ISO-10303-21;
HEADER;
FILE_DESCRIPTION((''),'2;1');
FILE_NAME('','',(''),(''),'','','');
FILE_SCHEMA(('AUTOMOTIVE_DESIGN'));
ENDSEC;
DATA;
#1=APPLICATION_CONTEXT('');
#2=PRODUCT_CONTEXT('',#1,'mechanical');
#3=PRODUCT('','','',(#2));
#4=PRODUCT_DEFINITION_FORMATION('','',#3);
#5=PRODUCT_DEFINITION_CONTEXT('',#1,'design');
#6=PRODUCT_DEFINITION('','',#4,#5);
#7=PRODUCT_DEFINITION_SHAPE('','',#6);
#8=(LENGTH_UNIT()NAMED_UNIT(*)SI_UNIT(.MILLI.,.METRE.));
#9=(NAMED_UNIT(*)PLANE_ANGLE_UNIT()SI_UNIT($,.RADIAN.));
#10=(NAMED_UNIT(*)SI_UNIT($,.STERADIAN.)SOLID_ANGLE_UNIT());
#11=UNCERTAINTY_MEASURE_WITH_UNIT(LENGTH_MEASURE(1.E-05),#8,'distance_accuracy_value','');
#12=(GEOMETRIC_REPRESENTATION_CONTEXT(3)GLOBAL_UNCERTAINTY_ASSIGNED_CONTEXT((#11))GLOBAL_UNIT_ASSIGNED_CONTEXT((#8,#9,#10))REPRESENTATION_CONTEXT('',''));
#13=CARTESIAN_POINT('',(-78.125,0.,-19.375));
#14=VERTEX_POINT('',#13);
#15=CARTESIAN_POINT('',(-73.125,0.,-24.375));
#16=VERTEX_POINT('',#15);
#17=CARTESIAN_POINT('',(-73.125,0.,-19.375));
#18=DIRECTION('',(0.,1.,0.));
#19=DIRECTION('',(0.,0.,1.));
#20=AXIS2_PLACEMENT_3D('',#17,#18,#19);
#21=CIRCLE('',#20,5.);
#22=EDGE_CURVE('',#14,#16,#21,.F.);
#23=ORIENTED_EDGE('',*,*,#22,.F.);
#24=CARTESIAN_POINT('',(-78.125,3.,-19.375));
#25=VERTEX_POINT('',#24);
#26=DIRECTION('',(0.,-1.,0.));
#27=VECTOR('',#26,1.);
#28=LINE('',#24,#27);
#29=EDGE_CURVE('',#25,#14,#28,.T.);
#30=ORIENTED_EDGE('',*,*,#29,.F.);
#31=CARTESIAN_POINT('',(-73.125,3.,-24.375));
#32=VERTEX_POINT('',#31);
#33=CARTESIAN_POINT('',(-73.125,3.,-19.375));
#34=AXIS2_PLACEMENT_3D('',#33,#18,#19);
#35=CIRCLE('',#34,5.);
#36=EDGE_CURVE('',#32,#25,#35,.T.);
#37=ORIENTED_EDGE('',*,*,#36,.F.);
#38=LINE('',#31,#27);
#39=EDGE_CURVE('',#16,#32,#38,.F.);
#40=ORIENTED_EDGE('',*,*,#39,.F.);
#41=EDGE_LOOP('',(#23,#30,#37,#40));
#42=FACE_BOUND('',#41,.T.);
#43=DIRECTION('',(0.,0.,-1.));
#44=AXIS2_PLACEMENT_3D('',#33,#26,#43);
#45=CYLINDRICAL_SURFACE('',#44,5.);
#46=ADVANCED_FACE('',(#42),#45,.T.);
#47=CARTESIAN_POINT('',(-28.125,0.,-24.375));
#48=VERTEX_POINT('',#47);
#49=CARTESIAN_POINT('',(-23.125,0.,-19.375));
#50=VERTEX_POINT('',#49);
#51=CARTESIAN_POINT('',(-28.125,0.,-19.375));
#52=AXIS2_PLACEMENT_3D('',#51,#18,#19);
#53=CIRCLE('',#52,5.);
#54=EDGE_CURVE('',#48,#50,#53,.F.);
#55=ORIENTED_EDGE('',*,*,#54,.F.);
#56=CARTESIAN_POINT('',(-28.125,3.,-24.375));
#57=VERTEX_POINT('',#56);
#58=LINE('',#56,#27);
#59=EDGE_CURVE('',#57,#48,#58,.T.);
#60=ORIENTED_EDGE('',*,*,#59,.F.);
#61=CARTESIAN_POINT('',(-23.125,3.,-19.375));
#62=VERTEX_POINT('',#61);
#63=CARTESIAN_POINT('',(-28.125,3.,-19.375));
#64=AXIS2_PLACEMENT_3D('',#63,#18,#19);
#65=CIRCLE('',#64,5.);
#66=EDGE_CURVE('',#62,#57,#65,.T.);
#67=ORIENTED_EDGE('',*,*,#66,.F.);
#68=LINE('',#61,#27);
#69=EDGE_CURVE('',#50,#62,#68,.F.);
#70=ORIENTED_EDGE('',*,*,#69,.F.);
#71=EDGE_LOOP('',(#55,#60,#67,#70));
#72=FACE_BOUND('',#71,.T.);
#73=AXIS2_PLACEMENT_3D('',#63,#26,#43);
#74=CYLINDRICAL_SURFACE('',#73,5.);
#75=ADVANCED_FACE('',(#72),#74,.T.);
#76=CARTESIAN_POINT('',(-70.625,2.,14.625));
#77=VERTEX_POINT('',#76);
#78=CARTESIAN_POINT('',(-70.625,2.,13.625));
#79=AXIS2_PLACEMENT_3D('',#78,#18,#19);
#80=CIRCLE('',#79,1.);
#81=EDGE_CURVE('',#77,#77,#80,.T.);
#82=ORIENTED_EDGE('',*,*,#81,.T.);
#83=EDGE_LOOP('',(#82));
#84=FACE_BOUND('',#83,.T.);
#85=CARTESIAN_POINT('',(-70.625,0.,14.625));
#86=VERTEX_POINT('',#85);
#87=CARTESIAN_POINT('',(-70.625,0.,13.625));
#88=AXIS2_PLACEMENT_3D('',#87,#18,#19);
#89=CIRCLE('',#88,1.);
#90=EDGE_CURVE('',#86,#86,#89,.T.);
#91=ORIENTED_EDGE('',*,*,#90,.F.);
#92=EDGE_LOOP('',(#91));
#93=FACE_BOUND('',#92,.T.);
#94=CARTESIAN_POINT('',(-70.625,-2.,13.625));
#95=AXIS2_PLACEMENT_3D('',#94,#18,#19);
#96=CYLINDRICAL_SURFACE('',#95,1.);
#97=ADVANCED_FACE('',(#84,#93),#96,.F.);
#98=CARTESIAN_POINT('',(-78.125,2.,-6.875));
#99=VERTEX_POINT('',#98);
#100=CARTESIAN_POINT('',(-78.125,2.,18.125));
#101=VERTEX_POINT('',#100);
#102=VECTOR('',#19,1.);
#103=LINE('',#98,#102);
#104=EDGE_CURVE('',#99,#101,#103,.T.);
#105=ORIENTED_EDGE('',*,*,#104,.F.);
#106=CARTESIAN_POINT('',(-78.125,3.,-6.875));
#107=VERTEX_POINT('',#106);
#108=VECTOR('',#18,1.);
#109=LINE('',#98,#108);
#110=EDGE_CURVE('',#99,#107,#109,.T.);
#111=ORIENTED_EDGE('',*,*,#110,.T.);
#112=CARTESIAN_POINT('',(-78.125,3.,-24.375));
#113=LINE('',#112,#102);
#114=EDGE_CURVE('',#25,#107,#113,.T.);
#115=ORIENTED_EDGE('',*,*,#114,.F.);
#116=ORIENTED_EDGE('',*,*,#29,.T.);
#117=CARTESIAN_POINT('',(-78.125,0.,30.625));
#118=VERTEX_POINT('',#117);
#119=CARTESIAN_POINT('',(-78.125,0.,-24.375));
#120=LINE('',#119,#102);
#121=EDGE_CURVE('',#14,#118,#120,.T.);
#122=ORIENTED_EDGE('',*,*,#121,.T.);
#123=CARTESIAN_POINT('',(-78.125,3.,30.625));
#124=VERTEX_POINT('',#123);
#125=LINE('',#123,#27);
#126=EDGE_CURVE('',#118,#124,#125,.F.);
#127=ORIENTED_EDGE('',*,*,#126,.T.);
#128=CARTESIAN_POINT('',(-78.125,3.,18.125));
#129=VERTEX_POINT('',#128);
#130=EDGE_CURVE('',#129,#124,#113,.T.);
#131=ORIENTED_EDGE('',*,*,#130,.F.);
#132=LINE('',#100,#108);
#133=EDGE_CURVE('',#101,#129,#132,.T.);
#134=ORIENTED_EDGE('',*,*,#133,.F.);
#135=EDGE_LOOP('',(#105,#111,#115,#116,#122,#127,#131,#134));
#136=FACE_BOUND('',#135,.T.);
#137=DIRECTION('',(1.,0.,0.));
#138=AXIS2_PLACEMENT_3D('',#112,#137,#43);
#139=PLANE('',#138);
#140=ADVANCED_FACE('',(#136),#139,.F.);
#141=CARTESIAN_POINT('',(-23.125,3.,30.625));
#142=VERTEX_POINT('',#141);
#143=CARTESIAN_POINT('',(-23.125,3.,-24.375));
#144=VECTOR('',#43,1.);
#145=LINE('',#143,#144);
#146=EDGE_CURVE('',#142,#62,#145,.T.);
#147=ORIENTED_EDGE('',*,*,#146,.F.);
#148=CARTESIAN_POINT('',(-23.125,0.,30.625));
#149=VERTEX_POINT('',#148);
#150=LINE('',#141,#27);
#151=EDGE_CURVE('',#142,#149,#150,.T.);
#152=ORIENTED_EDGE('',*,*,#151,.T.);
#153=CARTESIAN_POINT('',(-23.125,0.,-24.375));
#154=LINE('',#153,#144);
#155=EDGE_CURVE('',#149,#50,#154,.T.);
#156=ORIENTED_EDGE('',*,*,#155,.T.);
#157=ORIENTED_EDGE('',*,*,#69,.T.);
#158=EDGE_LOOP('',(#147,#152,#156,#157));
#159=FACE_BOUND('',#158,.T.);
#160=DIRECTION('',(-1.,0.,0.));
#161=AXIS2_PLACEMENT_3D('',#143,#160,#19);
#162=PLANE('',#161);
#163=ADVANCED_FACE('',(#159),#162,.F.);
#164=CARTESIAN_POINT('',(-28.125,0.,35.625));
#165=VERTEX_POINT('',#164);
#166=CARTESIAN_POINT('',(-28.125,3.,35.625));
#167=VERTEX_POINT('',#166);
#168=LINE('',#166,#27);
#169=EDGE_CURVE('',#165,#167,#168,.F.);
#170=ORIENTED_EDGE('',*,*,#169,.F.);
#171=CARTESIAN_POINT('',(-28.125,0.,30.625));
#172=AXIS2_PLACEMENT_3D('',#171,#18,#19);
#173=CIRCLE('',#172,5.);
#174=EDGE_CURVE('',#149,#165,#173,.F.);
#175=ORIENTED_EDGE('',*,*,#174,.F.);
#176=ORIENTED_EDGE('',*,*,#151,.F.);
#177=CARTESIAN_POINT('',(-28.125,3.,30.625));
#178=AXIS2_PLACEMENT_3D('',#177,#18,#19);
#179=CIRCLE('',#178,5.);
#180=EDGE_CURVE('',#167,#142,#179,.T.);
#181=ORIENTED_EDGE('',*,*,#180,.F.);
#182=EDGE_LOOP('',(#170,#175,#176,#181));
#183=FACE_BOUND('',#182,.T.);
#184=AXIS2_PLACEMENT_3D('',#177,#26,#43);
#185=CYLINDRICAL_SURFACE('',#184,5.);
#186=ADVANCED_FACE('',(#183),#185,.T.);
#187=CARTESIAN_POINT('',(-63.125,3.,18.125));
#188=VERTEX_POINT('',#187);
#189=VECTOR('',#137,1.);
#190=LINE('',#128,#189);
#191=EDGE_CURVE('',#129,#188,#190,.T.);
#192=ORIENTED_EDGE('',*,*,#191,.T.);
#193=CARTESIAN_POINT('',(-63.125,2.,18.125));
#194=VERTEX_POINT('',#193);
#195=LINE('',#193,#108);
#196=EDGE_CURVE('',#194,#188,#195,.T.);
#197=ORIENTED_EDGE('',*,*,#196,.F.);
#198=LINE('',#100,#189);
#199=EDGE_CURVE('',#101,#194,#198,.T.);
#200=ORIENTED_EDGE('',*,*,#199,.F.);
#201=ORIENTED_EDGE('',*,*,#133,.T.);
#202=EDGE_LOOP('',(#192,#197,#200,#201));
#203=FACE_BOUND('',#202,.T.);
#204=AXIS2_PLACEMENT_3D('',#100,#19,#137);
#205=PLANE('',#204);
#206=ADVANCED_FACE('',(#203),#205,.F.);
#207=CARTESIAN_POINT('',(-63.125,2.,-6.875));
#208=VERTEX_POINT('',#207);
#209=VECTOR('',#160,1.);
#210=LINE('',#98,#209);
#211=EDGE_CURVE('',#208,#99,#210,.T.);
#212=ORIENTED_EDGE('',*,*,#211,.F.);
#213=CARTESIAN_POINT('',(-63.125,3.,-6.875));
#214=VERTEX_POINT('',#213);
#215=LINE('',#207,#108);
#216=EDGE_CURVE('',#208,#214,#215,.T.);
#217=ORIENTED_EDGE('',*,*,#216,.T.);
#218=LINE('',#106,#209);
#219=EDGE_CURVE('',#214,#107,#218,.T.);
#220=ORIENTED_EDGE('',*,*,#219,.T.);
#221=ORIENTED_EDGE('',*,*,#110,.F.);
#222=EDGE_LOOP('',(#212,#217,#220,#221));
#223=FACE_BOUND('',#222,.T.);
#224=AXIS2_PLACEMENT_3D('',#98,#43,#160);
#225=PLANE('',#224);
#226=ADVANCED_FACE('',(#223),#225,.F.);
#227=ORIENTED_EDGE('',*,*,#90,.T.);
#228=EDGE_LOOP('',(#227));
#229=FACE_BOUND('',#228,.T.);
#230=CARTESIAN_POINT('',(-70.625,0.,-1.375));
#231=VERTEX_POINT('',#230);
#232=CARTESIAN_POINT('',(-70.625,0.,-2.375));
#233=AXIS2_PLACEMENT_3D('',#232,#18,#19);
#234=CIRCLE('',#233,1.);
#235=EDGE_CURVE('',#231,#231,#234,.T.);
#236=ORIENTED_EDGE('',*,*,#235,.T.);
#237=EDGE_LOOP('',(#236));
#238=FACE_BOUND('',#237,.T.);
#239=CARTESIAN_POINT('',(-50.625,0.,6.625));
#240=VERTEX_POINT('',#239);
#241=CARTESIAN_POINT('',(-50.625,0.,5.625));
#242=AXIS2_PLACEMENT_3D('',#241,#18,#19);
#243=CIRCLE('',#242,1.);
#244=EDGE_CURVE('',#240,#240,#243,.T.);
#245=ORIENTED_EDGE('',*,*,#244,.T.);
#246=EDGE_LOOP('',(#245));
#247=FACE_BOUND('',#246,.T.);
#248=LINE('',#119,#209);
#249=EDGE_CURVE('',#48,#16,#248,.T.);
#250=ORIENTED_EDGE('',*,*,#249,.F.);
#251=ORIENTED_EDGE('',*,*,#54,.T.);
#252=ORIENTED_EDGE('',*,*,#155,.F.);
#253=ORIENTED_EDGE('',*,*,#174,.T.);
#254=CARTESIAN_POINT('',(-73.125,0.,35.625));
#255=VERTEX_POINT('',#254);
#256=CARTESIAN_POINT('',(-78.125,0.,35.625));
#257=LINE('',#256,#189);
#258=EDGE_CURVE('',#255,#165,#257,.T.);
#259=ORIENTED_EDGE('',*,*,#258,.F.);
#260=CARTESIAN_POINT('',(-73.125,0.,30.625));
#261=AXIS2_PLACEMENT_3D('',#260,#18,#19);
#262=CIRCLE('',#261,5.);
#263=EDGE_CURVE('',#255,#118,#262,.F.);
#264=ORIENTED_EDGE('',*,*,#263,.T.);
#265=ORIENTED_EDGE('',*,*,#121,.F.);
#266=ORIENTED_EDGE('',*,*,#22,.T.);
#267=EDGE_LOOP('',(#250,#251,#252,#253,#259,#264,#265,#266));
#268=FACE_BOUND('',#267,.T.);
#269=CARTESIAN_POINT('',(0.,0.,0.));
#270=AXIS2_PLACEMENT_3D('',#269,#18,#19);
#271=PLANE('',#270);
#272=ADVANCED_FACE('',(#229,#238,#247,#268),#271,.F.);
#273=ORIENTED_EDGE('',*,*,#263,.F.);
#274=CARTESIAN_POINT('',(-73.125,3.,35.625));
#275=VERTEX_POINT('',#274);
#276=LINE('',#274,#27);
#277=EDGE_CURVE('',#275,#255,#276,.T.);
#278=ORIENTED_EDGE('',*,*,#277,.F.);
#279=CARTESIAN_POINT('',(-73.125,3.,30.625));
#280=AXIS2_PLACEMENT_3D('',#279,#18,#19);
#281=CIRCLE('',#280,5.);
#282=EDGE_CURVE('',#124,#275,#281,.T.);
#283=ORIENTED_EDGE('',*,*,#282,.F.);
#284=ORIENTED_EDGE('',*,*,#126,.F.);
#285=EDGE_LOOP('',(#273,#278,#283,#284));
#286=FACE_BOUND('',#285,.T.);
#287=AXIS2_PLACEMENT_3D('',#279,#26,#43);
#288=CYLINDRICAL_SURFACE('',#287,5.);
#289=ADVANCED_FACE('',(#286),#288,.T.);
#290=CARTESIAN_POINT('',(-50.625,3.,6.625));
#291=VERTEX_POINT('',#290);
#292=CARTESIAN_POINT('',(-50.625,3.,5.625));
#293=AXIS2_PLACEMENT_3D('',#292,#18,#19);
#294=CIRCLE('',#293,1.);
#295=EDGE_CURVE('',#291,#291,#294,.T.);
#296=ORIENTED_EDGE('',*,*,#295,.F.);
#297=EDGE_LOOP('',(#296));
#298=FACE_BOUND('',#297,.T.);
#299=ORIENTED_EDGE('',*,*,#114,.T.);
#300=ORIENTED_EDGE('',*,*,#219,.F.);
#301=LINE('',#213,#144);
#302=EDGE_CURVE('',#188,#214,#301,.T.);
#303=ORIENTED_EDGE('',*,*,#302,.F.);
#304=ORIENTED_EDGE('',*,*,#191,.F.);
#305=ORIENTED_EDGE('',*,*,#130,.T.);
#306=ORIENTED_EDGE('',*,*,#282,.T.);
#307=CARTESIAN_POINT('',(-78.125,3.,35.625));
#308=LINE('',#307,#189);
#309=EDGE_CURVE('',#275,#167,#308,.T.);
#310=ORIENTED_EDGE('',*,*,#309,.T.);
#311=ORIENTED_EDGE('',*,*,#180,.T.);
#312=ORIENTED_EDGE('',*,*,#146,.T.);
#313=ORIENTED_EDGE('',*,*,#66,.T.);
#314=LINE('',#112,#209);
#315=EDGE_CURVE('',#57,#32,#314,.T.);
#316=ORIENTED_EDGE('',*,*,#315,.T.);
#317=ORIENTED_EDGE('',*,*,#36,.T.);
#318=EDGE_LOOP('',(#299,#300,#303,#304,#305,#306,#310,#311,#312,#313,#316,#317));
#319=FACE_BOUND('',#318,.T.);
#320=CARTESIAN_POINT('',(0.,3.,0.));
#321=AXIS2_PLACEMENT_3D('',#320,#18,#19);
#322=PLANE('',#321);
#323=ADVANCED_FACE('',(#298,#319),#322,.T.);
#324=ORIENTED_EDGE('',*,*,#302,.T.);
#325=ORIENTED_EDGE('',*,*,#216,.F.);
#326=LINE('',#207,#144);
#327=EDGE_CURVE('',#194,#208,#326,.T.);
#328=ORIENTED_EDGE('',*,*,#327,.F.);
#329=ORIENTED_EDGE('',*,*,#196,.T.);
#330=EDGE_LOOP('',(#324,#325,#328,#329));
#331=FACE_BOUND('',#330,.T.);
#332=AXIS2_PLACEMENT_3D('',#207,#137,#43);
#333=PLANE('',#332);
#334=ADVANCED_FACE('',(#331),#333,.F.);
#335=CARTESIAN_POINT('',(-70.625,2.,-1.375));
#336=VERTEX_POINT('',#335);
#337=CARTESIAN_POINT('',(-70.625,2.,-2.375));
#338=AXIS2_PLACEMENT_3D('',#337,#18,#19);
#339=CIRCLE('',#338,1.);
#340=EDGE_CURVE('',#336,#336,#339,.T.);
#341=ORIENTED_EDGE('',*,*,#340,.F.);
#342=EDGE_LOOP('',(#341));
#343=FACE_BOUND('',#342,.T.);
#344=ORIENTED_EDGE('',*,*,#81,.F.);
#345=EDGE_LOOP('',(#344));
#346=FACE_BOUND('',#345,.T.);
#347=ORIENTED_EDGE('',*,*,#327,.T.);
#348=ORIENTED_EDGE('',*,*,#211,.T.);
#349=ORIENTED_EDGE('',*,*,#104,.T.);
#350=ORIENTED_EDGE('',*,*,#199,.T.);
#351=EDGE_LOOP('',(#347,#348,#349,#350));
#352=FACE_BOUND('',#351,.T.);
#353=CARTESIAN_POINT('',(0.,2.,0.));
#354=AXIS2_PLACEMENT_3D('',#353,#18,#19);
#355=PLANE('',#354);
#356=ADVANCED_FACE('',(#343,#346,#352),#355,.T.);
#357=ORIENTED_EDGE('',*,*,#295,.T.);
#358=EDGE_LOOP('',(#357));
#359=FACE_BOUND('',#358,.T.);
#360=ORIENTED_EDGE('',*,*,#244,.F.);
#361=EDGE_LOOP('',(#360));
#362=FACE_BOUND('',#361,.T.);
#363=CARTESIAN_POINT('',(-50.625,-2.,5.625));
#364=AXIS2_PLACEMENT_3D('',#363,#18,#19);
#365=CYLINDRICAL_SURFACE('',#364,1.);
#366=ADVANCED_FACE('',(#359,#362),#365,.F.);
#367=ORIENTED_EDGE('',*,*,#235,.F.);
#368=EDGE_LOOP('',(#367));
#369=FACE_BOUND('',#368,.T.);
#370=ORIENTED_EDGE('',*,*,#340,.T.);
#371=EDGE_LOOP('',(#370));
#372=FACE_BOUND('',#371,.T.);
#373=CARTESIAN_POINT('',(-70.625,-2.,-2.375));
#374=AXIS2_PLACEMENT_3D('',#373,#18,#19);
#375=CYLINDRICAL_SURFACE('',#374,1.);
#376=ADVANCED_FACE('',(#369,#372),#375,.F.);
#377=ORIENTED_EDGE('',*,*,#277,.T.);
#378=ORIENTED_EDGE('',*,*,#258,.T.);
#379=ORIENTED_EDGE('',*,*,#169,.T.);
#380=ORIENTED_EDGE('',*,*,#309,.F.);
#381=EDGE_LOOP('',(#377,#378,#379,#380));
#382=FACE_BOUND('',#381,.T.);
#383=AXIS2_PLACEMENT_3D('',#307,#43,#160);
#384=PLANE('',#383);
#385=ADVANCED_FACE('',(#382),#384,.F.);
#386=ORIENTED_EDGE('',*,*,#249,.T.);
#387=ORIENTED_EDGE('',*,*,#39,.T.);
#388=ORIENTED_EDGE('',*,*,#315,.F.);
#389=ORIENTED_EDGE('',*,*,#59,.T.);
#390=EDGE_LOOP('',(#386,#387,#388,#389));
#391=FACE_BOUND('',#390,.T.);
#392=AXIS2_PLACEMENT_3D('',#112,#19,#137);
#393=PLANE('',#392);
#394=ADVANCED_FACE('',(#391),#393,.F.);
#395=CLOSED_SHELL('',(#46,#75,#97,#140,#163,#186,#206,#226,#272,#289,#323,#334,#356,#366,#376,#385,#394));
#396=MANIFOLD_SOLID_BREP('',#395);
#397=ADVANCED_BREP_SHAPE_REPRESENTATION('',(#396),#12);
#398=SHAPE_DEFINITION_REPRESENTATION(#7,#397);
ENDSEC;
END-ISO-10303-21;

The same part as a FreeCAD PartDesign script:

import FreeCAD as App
import Part
import Sketcher

V = App.Vector
Q = App.Units.Quantity


def edges_at(feature, points):
    """Names of the edges that pass closest to the given points."""
    edges = feature.Shape.Edges
    near = lambda p: min(range(len(edges)), key=lambda i: edges[i].distToShape(Part.Vertex(*p))[0])
    return sorted({f"Edge{near(p) + 1}" for p in points})

doc = App.newDocument("Part")
body = doc.addObject("PartDesign::Body", "Body")

sketch1 = doc.addObject("Sketcher::SketchObject", "Sketch")
body.addObject(sketch1)
sketch1.AttachmentSupport = (doc.XZ_Plane, [""])
sketch1.MapMode = "FlatFace"
sketch1.addGeometry(Part.LineSegment(V(-78, -24, 0), V(-78, 36, 0)), False)
sketch1.addGeometry(Part.LineSegment(V(-78, 36, 0), V(-23, 36, 0)), False)
sketch1.addGeometry(Part.LineSegment(V(-23, 36, 0), V(-23, -24, 0)), False)
sketch1.addGeometry(Part.LineSegment(V(-23, -24, 0), V(-78, -24, 0)), False)
sketch1.addConstraint(Sketcher.Constraint("Coincident", 0, 2, 1, 1))
sketch1.addConstraint(Sketcher.Constraint("Coincident", 1, 2, 2, 1))
sketch1.addConstraint(Sketcher.Constraint("Coincident", 2, 2, 3, 1))
sketch1.addConstraint(Sketcher.Constraint("Coincident", 3, 2, 0, 1))
sketch1.addConstraint(Sketcher.Constraint("Vertical", 0))
sketch1.addConstraint(Sketcher.Constraint("Horizontal", 1))
sketch1.addConstraint(Sketcher.Constraint("Vertical", 2))
sketch1.addConstraint(Sketcher.Constraint("Horizontal", 3))
sketch1.addConstraint(Sketcher.Constraint("DistanceX", 1, 1, 1, 2, Q("55 mm")))
sketch1.addConstraint(Sketcher.Constraint("DistanceY", 0, 1, 0, 2, Q("60 mm")))
sketch1.addConstraint(Sketcher.Constraint("DistanceX", 0, 2, -1, 1, Q("78.125 mm")))
sketch1.addConstraint(Sketcher.Constraint("DistanceY", -1, 1, 0, 2, Q("35.625 mm")))
pad1 = doc.addObject("PartDesign::Pad", "Pad")
body.addObject(pad1)
pad1.Profile = sketch1
pad1.Length = 3
pad1.Reversed = True

sketch2 = doc.addObject("Sketcher::SketchObject", "Sketch001")
body.addObject(sketch2)
sketch2.AttachmentSupport = (doc.XZ_Plane, [""])
sketch2.MapMode = "FlatFace"
sketch2.AttachmentOffset = App.Placement(V(0, 0, -3), App.Rotation())
sketch2.addGeometry(Part.LineSegment(V(-78, -7, 0), V(-78, 18, 0)), False)
sketch2.addGeometry(Part.LineSegment(V(-78, 18, 0), V(-63, 18, 0)), False)
sketch2.addGeometry(Part.LineSegment(V(-63, 18, 0), V(-63, -7, 0)), False)
sketch2.addGeometry(Part.LineSegment(V(-63, -7, 0), V(-78, -7, 0)), False)
sketch2.addConstraint(Sketcher.Constraint("Coincident", 0, 2, 1, 1))
sketch2.addConstraint(Sketcher.Constraint("Coincident", 1, 2, 2, 1))
sketch2.addConstraint(Sketcher.Constraint("Coincident", 2, 2, 3, 1))
sketch2.addConstraint(Sketcher.Constraint("Coincident", 3, 2, 0, 1))
sketch2.addConstraint(Sketcher.Constraint("Vertical", 0))
sketch2.addConstraint(Sketcher.Constraint("Horizontal", 1))
sketch2.addConstraint(Sketcher.Constraint("Vertical", 2))
sketch2.addConstraint(Sketcher.Constraint("Horizontal", 3))
sketch2.addConstraint(Sketcher.Constraint("DistanceX", 1, 1, 1, 2, Q("15 mm")))
sketch2.addConstraint(Sketcher.Constraint("DistanceY", 0, 1, 0, 2, Q("25 mm")))
sketch2.addConstraint(Sketcher.Constraint("DistanceX", 0, 2, -1, 1, Q("78.125 mm")))
sketch2.addConstraint(Sketcher.Constraint("DistanceY", -1, 1, 0, 2, Q("18.125 mm")))
pocket1 = doc.addObject("PartDesign::Pocket", "Pocket")
body.addObject(pocket1)
pocket1.Profile = sketch2
pocket1.Length = 1
pocket1.Reversed = True

sketch3 = doc.addObject("Sketcher::SketchObject", "Sketch002")
body.addObject(sketch3)
sketch3.AttachmentSupport = (doc.XZ_Plane, [""])
sketch3.MapMode = "FlatFace"
sketch3.AttachmentOffset = App.Placement(V(0, 0, -3), App.Rotation())
sketch3.addGeometry(Part.Circle(V(-70.6, -2.4, 0), V(0, 0, 1), 1), False)
sketch3.addGeometry(Part.Circle(V(-70.6, 13.6, 0), V(0, 0, 1), 1), False)
sketch3.addConstraint(Sketcher.Constraint("Equal", 0, 1))
sketch3.addConstraint(Sketcher.Constraint("Vertical", 0, 3, 1, 3))
sketch3.addConstraint(Sketcher.Constraint("Diameter", 0, Q("2 mm")))
sketch3.addConstraint(Sketcher.Constraint("DistanceY", 0, 3, 1, 3, Q("16 mm")))
sketch3.addConstraint(Sketcher.Constraint("DistanceX", 0, 3, -1, 1, Q("70.625 mm")))
sketch3.addConstraint(Sketcher.Constraint("DistanceY", 0, 3, -1, 1, Q("2.375 mm")))
pocket2 = doc.addObject("PartDesign::Pocket", "Pocket001")
body.addObject(pocket2)
pocket2.Profile = sketch3
pocket2.Length = 5
pocket2.Reversed = True
doc.recompute()

fillet = doc.addObject("PartDesign::Fillet", "Fillet")
body.addObject(fillet)
fillet.Base = (pocket2, edges_at(pocket2, [
    (-78.125, 1.5, -24.375),
    (-23.125, 1.5, -24.375),
    (-23.125, 1.5, 35.625),
    (-78.125, 1.5, 35.625),
]))
fillet.Radius = 5

sketch4 = doc.addObject("Sketcher::SketchObject", "Sketch003")
body.addObject(sketch4)
sketch4.AttachmentSupport = (doc.XZ_Plane, [""])
sketch4.MapMode = "FlatFace"
sketch4.AttachmentOffset = App.Placement(V(0, 0, -3), App.Rotation())
sketch4.addGeometry(Part.Circle(V(-50.6, 5.6, 0), V(0, 0, 1), 1), False)
sketch4.addConstraint(Sketcher.Constraint("Diameter", 0, Q("2 mm")))
sketch4.addConstraint(Sketcher.Constraint("DistanceX", 0, 3, -1, 1, Q("50.625 mm")))
sketch4.addConstraint(Sketcher.Constraint("DistanceY", -1, 1, 0, 3, Q("5.625 mm")))
pocket3 = doc.addObject("PartDesign::Pocket", "Pocket002")
body.addObject(pocket3)
pocket3.Profile = sketch4
pocket3.Length = 5
pocket3.Reversed = True

doc.recompute()
